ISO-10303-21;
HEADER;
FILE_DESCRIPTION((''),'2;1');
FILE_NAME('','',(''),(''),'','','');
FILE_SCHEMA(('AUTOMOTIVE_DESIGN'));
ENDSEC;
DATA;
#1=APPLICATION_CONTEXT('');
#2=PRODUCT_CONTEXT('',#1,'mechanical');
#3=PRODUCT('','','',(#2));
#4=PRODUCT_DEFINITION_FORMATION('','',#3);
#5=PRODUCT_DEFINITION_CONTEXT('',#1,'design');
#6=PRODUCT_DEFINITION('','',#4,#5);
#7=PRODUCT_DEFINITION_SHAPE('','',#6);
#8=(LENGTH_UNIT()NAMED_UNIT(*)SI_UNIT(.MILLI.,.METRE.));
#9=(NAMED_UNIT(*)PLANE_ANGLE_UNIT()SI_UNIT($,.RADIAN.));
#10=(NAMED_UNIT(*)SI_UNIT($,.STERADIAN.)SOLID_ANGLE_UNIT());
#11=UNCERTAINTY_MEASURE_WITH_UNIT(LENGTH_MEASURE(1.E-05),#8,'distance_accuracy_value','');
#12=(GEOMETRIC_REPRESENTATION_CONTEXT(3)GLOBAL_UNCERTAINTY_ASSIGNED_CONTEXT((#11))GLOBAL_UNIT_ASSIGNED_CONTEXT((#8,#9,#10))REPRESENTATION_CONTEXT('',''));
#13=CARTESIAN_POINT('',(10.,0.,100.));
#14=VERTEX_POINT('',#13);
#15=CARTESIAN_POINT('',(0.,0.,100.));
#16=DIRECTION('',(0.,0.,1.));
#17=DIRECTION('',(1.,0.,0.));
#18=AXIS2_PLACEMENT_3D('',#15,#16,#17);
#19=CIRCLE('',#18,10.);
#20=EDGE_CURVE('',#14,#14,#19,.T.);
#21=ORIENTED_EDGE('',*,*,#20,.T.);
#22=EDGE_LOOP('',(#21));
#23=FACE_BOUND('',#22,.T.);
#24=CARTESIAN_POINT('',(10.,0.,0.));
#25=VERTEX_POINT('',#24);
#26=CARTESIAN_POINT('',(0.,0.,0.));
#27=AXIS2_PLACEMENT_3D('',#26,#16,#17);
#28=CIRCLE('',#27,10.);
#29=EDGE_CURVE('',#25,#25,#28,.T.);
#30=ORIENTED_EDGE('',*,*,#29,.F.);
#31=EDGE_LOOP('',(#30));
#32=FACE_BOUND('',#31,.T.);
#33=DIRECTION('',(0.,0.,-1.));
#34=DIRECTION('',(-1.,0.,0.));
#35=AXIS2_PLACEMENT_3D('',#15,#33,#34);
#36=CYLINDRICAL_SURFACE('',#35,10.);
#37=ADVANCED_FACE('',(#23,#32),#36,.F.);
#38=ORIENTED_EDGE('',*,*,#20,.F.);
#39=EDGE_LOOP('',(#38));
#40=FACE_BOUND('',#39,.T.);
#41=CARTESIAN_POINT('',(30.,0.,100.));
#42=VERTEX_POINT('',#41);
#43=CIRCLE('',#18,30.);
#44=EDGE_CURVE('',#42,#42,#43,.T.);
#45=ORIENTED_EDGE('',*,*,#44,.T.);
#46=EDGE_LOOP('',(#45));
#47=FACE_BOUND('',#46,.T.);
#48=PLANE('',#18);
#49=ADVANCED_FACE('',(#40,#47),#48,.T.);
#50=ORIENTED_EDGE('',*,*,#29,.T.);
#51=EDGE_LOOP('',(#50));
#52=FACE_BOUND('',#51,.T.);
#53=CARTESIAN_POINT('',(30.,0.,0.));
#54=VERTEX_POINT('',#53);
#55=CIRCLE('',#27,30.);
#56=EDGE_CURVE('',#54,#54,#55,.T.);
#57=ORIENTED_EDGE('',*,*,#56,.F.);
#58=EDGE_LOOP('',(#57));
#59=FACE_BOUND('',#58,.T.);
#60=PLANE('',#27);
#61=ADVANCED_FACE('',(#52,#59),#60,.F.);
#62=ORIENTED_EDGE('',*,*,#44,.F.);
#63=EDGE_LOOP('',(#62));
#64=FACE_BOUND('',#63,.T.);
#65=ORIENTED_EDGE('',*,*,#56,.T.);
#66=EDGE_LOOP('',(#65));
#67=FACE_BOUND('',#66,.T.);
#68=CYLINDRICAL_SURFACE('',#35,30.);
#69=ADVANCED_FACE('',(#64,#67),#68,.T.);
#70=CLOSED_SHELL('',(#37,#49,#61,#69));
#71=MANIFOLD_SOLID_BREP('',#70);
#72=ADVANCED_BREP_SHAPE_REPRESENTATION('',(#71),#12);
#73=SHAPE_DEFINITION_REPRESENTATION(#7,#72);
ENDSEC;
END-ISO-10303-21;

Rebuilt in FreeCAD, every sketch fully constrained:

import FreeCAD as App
import Part
import Sketcher

V = App.Vector

doc = App.newDocument("Part")
body = doc.addObject("PartDesign::Body", "Body")

# Sketch on XY plane
sketch1 = doc.addObject("Sketcher::SketchObject", "Sketch")
body.addObject(sketch1)
sketch1.AttachmentSupport = (doc.XY_Plane, [""])
sketch1.MapMode = "FlatFace"
sketch1.addGeometry([
    Part.Circle(V(0, 0, 0), V(0, 0, 1), 30),
    Part.Circle(V(0, 0, 0), V(0, 0, 1), 10),
], False)
sketch1.addConstraint([
    Sketcher.Constraint("Coincident", 0, 3, -1, 1),
    Sketcher.Constraint("Coincident", 1, 3, -1, 1),
    Sketcher.Constraint("Diameter", 0, 60.0),
    Sketcher.Constraint("Diameter", 1, 20.0),
])
pad1 = doc.addObject("PartDesign::Pad", "Pad")
body.addObject(pad1)
pad1.Profile = sketch1
pad1.Length = 100

doc.recompute()
